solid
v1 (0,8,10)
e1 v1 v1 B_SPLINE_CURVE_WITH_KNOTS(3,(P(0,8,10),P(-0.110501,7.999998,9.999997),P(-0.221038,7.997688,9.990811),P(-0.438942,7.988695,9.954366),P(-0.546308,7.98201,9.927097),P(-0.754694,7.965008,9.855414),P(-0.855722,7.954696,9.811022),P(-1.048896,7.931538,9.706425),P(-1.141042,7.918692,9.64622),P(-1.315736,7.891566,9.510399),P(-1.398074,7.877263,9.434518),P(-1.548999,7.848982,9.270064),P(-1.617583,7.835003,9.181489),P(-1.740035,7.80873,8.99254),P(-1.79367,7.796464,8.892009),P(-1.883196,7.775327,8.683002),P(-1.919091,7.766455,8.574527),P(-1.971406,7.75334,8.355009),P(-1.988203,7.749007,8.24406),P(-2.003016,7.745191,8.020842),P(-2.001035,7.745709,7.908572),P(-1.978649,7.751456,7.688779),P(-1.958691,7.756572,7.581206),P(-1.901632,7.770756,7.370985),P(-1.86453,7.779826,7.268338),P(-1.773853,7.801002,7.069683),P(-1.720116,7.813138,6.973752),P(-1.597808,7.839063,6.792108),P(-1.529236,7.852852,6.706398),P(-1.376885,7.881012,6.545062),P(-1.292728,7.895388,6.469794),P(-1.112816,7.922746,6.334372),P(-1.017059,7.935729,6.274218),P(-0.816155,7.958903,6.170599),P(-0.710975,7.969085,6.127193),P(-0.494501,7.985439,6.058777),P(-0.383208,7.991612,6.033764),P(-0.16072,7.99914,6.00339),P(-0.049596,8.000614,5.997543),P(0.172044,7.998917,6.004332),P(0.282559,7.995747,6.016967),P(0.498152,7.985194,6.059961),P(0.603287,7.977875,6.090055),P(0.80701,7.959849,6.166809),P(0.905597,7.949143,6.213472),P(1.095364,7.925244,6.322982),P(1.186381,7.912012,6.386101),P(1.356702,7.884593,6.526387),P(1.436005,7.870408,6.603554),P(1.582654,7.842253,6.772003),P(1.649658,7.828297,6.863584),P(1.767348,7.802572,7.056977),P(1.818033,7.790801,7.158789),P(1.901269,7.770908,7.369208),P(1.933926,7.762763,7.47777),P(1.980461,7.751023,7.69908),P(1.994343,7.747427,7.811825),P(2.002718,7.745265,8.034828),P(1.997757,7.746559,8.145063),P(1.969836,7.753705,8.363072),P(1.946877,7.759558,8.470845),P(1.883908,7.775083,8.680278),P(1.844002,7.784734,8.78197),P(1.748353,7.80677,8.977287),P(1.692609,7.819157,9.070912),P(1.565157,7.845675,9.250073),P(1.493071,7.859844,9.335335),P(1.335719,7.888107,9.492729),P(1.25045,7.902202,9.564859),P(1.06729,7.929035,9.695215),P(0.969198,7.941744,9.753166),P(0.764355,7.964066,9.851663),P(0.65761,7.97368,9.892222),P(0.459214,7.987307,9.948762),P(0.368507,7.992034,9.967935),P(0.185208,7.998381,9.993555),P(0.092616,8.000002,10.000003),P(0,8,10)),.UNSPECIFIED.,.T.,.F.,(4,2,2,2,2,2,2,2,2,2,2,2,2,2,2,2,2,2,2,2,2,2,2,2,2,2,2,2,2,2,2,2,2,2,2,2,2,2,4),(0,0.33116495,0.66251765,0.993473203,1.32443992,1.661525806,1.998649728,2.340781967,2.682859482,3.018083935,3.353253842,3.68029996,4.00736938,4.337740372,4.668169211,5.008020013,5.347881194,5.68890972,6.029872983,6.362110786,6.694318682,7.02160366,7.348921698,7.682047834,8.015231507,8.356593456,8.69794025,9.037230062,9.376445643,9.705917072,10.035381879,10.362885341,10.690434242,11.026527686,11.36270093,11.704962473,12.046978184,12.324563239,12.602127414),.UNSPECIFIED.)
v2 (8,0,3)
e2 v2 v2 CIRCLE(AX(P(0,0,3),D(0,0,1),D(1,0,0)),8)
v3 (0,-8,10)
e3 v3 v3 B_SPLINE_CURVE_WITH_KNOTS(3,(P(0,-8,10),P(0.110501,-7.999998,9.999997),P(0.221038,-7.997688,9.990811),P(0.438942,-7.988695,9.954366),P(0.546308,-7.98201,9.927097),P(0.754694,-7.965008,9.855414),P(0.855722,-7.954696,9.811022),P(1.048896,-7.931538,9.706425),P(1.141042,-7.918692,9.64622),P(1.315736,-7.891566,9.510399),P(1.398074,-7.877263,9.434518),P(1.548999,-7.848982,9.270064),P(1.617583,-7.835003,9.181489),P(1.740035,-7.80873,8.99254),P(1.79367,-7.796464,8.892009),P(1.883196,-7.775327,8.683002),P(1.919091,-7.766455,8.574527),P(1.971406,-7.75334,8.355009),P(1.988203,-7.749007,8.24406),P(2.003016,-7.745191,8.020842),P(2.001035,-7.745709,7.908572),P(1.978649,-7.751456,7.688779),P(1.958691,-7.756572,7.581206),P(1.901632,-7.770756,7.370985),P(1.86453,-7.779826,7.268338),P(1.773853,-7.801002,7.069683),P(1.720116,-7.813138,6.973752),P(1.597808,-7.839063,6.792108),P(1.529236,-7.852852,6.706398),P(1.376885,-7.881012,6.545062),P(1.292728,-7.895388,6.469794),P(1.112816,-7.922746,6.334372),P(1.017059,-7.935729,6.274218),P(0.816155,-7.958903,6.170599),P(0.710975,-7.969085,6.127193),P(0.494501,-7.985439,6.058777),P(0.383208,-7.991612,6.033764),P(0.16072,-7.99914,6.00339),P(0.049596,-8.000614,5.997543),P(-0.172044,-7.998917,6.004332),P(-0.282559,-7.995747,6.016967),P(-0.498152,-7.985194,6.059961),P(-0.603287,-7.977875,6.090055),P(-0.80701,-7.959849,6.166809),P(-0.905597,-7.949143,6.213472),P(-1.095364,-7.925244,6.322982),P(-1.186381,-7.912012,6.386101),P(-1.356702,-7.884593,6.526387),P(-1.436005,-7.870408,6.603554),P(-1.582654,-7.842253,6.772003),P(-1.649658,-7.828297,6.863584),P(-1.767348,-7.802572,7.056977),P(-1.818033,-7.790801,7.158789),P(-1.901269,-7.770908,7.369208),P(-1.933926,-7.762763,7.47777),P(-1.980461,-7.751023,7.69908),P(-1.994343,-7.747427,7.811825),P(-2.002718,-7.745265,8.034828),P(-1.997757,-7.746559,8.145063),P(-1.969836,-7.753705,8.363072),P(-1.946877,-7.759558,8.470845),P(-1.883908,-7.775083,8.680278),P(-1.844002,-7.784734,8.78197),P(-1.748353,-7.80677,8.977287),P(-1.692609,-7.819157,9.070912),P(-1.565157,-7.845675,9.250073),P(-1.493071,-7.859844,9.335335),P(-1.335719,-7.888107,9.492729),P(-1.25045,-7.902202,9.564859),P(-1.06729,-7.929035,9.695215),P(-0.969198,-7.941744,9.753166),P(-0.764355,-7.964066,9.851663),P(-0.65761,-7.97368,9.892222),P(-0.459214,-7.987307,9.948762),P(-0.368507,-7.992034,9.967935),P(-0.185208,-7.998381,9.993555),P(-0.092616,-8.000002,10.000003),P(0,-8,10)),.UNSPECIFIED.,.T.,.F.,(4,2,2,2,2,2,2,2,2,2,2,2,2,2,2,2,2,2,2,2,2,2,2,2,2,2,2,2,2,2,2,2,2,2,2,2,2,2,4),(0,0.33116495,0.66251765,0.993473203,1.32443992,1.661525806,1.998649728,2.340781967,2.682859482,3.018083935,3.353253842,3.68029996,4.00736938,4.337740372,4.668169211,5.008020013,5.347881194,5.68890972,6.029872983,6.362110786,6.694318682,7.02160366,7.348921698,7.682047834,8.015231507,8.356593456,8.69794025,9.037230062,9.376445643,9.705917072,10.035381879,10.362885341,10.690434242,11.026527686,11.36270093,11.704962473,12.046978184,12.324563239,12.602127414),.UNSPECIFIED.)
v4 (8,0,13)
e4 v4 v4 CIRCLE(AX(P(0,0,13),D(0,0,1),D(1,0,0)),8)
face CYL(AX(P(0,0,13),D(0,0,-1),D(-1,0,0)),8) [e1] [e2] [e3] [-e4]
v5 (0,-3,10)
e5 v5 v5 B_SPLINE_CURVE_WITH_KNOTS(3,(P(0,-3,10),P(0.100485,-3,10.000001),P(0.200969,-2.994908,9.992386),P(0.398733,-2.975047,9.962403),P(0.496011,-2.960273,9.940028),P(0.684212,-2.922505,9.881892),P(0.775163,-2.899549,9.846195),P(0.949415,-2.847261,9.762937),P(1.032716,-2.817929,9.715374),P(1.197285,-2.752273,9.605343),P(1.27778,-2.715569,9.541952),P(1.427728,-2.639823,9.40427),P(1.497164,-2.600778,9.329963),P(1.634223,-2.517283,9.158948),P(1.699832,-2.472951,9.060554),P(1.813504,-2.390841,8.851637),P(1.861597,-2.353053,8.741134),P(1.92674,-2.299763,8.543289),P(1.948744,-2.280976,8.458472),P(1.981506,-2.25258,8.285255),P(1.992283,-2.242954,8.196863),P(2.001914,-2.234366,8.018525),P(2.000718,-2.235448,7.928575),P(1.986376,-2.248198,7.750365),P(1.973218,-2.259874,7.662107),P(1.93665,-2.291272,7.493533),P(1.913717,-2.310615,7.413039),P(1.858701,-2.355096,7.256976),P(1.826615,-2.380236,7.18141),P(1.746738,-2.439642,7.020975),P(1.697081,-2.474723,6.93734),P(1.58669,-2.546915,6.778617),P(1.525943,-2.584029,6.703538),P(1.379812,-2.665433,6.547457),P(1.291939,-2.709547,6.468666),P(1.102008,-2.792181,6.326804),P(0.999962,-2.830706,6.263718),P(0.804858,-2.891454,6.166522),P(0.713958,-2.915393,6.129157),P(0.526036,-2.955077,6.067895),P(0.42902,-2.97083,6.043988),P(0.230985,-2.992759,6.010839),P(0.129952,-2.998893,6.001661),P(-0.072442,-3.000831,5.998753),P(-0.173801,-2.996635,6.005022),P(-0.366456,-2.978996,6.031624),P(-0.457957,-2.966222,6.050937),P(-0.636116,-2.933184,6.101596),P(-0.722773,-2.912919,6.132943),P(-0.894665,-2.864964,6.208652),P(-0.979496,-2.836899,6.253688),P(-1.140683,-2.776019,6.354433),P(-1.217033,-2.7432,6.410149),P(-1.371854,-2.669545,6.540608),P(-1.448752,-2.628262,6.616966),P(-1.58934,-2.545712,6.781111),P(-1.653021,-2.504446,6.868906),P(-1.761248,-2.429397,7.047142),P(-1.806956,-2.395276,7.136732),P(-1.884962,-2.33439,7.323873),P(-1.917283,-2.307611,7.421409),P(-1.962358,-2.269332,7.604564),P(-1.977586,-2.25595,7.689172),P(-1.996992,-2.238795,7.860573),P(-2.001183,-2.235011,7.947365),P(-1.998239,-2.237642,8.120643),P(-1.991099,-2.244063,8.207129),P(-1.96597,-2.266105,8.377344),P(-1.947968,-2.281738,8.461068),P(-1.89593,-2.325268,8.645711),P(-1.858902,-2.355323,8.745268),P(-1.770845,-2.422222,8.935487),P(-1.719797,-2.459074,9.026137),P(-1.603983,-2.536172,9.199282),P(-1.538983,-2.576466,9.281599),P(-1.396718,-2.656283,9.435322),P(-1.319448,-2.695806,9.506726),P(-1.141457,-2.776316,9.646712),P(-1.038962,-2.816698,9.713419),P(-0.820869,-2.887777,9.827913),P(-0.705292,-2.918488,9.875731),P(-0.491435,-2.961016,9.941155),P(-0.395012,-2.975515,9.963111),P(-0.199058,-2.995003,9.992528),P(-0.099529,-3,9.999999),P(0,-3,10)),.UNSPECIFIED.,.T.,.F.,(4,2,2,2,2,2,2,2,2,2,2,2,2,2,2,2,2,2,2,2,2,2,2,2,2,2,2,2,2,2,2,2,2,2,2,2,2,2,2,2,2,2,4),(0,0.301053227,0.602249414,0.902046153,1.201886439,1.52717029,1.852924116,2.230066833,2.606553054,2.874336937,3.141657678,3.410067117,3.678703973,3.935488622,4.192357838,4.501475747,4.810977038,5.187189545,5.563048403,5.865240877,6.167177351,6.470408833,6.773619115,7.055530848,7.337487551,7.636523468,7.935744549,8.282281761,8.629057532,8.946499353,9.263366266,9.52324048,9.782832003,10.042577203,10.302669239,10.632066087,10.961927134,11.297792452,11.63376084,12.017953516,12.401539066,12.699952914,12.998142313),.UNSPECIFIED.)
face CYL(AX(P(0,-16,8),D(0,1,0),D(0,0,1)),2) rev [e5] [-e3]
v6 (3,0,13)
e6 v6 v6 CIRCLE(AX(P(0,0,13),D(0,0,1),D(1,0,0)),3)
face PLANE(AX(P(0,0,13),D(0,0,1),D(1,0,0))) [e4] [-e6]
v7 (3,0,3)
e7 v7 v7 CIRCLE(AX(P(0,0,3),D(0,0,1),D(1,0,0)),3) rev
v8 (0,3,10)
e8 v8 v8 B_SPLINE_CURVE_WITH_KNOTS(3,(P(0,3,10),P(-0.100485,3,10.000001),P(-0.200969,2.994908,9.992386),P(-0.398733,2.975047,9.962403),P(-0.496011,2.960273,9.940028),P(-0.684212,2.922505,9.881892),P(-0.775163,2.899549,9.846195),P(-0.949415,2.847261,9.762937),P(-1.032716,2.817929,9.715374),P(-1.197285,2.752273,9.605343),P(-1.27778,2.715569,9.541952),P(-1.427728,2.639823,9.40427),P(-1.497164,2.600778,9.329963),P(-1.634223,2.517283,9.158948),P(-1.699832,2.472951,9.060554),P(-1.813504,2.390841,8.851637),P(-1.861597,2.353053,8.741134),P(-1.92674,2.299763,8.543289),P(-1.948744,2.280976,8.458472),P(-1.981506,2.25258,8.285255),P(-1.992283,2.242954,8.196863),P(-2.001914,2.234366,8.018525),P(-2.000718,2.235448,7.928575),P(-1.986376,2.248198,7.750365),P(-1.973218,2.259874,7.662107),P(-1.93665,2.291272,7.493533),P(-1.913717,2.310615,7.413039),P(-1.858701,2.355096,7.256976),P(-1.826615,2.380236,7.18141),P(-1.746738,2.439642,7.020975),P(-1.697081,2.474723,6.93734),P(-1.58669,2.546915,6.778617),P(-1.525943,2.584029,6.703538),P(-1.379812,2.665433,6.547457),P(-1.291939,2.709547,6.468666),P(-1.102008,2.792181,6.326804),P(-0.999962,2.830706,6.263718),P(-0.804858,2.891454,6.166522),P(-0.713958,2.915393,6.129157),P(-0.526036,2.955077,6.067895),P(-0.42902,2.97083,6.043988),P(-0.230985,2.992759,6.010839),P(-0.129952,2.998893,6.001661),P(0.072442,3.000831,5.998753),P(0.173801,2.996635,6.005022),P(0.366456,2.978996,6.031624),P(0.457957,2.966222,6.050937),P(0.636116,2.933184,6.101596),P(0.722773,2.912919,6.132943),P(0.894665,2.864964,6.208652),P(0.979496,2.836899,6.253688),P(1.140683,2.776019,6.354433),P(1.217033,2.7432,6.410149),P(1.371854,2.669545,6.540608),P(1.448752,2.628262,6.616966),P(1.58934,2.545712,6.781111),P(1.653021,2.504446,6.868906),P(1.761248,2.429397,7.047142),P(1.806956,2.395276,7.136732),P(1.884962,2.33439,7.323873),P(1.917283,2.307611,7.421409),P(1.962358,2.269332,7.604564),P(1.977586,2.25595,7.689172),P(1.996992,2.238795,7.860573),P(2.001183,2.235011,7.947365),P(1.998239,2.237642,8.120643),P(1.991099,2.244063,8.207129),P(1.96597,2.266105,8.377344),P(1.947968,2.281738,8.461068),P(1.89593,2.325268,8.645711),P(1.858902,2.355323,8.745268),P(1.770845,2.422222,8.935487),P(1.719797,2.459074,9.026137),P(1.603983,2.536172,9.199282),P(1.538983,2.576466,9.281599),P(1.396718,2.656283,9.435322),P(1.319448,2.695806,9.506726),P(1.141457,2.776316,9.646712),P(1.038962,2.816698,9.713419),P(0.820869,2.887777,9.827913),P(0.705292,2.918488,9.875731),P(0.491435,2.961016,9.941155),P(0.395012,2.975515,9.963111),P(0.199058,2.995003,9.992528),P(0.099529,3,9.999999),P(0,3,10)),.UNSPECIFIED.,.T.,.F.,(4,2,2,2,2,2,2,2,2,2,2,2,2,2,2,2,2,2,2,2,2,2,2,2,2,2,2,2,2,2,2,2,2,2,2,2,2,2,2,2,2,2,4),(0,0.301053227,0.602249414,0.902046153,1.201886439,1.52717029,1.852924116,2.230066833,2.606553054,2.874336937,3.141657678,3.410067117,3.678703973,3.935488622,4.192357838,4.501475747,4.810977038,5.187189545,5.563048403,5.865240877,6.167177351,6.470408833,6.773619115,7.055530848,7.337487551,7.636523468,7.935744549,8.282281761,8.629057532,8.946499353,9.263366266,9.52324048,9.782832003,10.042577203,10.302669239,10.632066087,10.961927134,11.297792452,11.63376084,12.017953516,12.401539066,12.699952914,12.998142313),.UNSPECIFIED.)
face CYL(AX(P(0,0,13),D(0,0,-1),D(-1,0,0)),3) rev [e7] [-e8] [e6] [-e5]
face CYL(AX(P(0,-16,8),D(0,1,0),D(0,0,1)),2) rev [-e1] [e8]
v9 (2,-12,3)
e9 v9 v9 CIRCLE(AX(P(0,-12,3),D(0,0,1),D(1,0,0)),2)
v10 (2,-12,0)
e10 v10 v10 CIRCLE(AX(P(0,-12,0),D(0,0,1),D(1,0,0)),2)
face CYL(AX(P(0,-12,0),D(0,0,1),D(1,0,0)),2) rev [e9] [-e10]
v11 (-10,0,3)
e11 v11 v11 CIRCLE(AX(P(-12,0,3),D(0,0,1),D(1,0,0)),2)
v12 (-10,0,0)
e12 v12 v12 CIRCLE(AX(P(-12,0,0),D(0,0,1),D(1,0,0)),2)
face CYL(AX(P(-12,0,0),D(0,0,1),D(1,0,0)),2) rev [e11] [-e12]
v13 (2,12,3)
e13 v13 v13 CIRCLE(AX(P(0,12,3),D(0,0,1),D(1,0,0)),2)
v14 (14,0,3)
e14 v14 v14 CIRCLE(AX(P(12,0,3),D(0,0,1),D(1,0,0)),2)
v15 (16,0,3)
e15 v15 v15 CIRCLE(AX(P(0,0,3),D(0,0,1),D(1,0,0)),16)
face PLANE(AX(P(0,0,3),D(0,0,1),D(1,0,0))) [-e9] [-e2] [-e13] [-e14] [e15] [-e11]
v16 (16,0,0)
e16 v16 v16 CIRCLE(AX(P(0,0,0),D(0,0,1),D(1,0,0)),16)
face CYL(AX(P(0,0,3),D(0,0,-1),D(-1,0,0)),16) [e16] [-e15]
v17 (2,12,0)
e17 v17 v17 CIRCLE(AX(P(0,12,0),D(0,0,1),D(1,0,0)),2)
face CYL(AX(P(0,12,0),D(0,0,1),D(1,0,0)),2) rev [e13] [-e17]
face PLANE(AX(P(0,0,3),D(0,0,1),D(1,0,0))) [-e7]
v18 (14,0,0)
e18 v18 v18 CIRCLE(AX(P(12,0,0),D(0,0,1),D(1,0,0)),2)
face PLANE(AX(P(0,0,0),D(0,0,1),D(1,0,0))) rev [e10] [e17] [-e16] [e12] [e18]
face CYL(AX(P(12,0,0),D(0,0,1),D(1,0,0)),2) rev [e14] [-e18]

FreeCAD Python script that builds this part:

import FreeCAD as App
import Part
import Sketcher
from FreeCAD import Vector

doc = App.newDocument("Part")
body = doc.addObject("PartDesign::Body", "Body")

# Sketch on XY plane
sketch1 = body.newObject("Sketcher::SketchObject", "Sketch")
sketch1.AttachmentSupport = (doc.getObject("XY_Plane"), [""])
sketch1.MapMode = "FlatFace"
sketch1.addGeometry(Part.Circle(Vector(0, 0, 0), Vector(0, 0, 1), 16), False)
sketch1.addConstraint([
    Sketcher.Constraint("Coincident", 0, 3, -1, 1),
    Sketcher.Constraint("Diameter", 0, 32.0),
])
pad1 = body.newObject("PartDesign::Pad", "Pad")
pad1.Profile = sketch1
pad1.Length = 3

# Sketch on XY plane
sketch2 = body.newObject("Sketcher::SketchObject", "Sketch001")
sketch2.AttachmentSupport = (doc.getObject("XY_Plane"), [""])
sketch2.MapMode = "FlatFace"
sketch2.AttachmentOffset = App.Placement(Vector(0, 0, 3), App.Rotation())
sketch2.addGeometry([
    Part.Circle(Vector(0, 0, 0), Vector(0, 0, 1), 8),
    Part.Circle(Vector(0, 0, 0), Vector(0, 0, 1), 3),
], False)
sketch2.addConstraint([
    Sketcher.Constraint("Coincident", 0, 3, -1, 1),
    Sketcher.Constraint("Coincident", 1, 3, -1, 1),
    Sketcher.Constraint("Diameter", 0, 16.0),
    Sketcher.Constraint("Diameter", 1, 6.0),
])
pad2 = body.newObject("PartDesign::Pad", "Pad001")
pad2.Profile = sketch2
pad2.Length = 10

# Sketch on XY plane
sketch3 = body.newObject("Sketcher::SketchObject", "Sketch002")
sketch3.AttachmentSupport = (doc.getObject("XY_Plane"), [""])
sketch3.MapMode = "FlatFace"
sketch3.AttachmentOffset = App.Placement(Vector(0, 0, 3), App.Rotation())
sketch3.addGeometry([
    Part.Circle(Vector(0, 12, 0), Vector(0, 0, 1), 2),
    Part.Circle(Vector(12, 0, 0), Vector(0, 0, 1), 2),
    Part.Circle(Vector(0, -12, 0), Vector(0, 0, 1), 2),
    Part.Circle(Vector(-12, 0, 0), Vector(0, 0, 1), 2),
], False)
sketch3.addConstraint([
    Sketcher.Constraint("Equal", 0, 1),
    Sketcher.Constraint("Equal", 1, 2),
    Sketcher.Constraint("Equal", 2, 3),
    Sketcher.Constraint("Symmetric", 0, 3, 2, 3, -1, 1),
    Sketcher.Constraint("Symmetric", 1, 3, 3, 3, -1, 1),
    Sketcher.Constraint("PointOnObject", 0, 3, -2),
    Sketcher.Constraint("PointOnObject", 1, 3, -1),
    Sketcher.Constraint("Diameter", 0, 4.0),
    Sketcher.Constraint("DistanceY", -1, 1, 0, 3, 12.0),
    Sketcher.Constraint("DistanceX", -1, 1, 1, 3, 12.0),
])
pocket1 = body.newObject("PartDesign::Pocket", "Pocket")
pocket1.Profile = sketch3
pocket1.Type = "ThroughAll"

# Sketch on XZ plane
sketch4 = body.newObject("Sketcher::SketchObject", "Sketch003")
sketch4.AttachmentSupport = (doc.getObject("XZ_Plane"), [""])
sketch4.MapMode = "FlatFace"
sketch4.addGeometry(Part.Circle(Vector(0, 8, 0), Vector(0, 0, 1), 2), False)
sketch4.addConstraint([
    Sketcher.Constraint("PointOnObject", 0, 3, -2),
    Sketcher.Constraint("Diameter", 0, 4.0),
    Sketcher.Constraint("DistanceY", -1, 1, 0, 3, 8.0),
])
pocket2 = body.newObject("PartDesign::Pocket", "Pocket001")
pocket2.Profile = sketch4
pocket2.Type = "ThroughAll"
pocket2.Midplane = True

doc.recompute()
